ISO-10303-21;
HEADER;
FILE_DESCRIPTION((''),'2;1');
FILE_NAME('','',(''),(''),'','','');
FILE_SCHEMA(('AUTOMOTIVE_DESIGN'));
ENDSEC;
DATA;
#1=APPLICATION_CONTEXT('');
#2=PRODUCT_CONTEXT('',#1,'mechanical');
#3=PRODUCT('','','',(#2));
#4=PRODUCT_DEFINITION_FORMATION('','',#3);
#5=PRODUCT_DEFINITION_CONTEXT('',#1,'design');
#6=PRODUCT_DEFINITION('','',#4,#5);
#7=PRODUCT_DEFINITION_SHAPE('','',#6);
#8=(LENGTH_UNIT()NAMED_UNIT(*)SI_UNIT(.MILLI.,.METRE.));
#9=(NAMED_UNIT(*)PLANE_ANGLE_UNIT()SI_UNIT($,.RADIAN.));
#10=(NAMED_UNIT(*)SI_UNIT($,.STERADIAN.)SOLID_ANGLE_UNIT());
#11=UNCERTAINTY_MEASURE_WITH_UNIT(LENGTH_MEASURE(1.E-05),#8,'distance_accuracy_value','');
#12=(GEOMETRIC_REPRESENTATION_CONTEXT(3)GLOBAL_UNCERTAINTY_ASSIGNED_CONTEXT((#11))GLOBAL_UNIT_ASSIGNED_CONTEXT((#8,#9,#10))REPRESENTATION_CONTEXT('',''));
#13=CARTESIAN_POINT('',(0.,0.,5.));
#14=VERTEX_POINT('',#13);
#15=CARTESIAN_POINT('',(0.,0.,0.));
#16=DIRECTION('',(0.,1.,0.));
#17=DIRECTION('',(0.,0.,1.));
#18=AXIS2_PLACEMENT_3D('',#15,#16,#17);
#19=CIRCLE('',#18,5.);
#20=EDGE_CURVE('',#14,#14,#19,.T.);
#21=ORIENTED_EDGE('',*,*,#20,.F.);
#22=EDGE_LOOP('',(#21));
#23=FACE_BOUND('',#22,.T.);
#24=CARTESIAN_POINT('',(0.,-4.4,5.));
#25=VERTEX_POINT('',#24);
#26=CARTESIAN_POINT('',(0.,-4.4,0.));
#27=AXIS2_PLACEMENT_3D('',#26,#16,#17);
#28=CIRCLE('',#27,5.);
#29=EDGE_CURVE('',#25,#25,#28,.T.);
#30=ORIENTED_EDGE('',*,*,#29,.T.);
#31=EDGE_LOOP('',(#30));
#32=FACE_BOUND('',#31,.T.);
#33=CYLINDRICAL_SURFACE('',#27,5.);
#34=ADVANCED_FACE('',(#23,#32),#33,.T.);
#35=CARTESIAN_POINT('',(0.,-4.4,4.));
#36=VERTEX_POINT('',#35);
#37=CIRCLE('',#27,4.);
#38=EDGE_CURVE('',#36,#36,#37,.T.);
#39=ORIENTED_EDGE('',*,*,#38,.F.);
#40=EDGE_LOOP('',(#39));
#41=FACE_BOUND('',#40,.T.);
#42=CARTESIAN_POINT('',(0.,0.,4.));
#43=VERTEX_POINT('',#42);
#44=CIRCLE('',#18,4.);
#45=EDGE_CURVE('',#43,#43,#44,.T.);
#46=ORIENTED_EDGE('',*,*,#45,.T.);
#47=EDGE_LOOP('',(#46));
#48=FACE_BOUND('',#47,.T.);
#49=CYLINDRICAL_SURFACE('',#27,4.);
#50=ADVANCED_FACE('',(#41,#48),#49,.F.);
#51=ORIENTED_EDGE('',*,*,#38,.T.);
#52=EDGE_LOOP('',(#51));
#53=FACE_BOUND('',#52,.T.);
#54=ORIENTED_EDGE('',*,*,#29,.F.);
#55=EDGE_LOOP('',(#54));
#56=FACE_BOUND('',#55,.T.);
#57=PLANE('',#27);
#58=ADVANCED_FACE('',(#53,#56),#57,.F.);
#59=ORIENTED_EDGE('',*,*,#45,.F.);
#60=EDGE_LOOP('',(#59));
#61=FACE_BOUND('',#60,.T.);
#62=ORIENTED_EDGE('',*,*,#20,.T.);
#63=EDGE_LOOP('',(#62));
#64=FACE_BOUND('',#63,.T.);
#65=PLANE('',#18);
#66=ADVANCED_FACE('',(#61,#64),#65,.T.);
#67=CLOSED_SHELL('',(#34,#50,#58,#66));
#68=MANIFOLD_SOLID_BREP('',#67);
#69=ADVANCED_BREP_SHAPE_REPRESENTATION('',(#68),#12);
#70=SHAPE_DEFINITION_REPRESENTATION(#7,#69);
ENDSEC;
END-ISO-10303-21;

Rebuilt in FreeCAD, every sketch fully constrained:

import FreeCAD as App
import Part
import Sketcher
from FreeCAD import Vector
Q = App.Units.Quantity

doc = App.newDocument("Part")
body = doc.addObject("PartDesign::Body", "Body")

sketch1 = body.newObject("Sketcher::SketchObject", "Sketch")
sketch1.AttachmentSupport = (doc.getObject("XZ_Plane"), [""])
sketch1.MapMode = "FlatFace"
sketch1.addGeometry([
    Part.Circle(Vector(0, 0, 0), Vector(0, 0, 1), 5),
    Part.Circle(Vector(0, 0, 0), Vector(0, 0, 1), 4),
], False)
sketch1.addConstraint([
    Sketcher.Constraint("Coincident", 0, 3, -1, 1),
    Sketcher.Constraint("Coincident", 1, 3, -1, 1),
    Sketcher.Constraint("Diameter", 0, Q("10 mm")),
    Sketcher.Constraint("Diameter", 1, Q("8 mm")),
])
pad1 = body.newObject("PartDesign::Pad", "Pad")
pad1.Profile = sketch1
pad1.Length = 4.4

doc.recompute()
